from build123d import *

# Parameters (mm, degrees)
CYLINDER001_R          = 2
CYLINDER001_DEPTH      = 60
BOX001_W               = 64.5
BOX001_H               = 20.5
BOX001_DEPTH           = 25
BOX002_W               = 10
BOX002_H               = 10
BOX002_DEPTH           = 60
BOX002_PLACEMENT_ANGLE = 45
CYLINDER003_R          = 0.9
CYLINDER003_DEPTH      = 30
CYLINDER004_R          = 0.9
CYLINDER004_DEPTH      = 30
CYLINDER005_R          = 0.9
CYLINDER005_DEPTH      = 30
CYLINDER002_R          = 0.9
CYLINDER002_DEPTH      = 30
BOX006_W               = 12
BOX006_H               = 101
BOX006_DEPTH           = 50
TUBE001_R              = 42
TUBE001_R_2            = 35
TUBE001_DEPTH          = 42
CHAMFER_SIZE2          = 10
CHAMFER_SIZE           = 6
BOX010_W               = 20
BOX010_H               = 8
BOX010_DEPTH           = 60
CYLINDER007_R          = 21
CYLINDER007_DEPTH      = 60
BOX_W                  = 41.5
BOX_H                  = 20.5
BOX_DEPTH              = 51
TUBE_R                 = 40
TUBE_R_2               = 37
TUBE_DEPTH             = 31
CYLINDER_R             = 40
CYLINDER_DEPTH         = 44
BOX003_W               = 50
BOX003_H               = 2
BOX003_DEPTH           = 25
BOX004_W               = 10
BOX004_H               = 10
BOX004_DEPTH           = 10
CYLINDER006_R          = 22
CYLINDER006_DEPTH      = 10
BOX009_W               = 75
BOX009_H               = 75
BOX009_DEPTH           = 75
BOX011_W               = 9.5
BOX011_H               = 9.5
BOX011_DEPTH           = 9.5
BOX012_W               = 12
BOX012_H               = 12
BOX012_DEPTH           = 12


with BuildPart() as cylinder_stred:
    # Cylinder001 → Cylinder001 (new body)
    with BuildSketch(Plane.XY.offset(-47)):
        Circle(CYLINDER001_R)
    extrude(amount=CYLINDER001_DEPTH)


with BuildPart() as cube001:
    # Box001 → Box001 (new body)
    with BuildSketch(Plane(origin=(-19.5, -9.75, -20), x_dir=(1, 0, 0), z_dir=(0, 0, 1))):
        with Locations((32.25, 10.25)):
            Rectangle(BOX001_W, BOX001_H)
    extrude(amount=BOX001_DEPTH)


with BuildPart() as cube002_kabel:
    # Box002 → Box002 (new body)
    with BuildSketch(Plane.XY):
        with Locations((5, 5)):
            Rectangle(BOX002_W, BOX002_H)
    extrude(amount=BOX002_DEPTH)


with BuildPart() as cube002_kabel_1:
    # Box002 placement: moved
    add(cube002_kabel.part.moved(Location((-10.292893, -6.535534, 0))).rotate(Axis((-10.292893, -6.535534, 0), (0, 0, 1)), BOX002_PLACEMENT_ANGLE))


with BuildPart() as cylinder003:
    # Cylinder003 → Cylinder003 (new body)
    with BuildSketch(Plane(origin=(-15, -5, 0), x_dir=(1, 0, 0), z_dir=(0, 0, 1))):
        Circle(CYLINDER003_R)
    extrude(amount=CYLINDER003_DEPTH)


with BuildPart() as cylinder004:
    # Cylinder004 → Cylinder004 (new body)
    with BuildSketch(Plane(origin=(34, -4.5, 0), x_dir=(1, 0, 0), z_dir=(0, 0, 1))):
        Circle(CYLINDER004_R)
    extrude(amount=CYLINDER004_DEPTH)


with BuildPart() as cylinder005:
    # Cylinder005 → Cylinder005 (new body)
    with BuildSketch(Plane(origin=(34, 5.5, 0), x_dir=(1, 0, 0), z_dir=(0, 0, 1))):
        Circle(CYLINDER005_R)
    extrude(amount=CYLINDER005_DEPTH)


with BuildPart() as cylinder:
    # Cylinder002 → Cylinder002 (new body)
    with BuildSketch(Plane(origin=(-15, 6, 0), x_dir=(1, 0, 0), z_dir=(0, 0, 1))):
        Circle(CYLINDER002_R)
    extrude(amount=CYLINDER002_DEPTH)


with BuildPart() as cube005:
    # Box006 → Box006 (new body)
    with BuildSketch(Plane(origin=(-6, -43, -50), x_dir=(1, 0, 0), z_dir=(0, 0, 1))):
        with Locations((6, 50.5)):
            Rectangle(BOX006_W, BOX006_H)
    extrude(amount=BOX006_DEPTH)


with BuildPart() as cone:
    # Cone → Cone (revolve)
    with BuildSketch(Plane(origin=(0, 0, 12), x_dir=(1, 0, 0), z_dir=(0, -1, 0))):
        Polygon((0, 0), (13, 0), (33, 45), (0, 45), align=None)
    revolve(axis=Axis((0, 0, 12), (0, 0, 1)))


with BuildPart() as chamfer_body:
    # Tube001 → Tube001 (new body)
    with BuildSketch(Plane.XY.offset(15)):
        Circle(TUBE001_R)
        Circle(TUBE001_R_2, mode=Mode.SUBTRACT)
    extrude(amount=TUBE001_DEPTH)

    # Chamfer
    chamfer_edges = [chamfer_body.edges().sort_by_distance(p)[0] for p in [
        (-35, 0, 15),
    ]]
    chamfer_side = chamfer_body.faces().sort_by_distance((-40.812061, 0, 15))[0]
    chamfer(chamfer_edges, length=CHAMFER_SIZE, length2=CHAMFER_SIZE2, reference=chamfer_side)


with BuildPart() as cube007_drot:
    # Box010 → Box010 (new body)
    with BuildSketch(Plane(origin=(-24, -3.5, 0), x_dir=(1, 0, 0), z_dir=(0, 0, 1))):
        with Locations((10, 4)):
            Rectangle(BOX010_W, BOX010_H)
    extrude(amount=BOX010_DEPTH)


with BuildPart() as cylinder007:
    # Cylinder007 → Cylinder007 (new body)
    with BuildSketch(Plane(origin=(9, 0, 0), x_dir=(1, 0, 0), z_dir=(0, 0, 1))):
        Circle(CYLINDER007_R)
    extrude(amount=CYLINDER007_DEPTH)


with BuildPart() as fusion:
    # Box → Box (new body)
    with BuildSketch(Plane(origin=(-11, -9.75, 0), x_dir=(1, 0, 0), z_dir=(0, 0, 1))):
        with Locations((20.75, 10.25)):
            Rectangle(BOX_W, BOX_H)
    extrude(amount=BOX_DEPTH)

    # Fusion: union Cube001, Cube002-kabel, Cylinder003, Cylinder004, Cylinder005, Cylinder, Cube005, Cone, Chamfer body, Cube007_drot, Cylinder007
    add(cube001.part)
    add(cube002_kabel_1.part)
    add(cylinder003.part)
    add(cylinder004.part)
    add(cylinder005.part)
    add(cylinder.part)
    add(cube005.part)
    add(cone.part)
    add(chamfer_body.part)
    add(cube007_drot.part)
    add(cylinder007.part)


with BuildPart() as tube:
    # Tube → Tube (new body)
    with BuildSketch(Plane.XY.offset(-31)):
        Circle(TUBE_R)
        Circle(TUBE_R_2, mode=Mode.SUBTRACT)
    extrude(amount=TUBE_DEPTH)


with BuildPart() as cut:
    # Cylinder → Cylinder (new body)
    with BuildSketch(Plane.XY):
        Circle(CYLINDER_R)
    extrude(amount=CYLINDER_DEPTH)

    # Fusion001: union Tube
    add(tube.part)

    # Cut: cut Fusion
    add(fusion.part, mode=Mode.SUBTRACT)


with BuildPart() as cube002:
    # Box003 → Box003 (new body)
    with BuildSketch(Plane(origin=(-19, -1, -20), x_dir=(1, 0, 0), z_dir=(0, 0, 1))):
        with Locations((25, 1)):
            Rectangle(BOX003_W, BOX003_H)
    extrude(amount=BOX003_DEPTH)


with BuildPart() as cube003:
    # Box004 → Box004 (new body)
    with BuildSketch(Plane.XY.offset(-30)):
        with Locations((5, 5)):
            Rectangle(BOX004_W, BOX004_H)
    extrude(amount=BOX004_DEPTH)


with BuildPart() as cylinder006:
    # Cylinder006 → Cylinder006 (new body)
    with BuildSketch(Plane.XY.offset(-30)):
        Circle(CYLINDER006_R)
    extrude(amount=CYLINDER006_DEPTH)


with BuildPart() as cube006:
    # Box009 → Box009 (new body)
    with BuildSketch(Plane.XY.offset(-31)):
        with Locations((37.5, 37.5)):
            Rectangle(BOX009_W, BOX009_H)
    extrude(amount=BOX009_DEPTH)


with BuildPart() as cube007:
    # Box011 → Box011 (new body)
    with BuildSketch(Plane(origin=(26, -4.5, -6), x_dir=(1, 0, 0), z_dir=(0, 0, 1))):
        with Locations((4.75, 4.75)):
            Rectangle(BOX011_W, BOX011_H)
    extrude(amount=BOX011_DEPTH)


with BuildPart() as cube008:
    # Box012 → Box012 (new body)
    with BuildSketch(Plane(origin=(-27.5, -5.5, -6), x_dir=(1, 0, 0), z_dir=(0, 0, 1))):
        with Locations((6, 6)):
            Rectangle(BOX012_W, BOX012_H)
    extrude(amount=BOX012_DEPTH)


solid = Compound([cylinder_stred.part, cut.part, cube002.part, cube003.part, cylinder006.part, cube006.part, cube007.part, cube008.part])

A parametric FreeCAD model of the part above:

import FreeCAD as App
import Part
import Sketcher


def edges_at(feature, points):
    """Names of the edges that pass closest to the given points."""
    edges = feature.Shape.Edges
    near = lambda p: min(range(len(edges)), key=lambda i: edges[i].distToShape(Part.Vertex(*p))[0])
    return sorted({f"Edge{near(p) + 1}" for p in points})

doc = App.newDocument("Part")
body = doc.addObject("PartDesign::Body", "Body")

# Sketch on XY plane
sketch1 = body.newObject("Sketcher::SketchObject", "Sketch")
sketch1.AttachmentSupport = (doc.getObject("XY_Plane"), [""])
sketch1.MapMode = "FlatFace"
sketch1.AttachmentOffset = App.Placement(App.Vector(0, 0, -47), App.Rotation())
sketch1.addGeometry(Part.Circle(App.Vector(0, 0, 0), App.Vector(0, 0, 1), 2), False)
sketch1.addConstraint(Sketcher.Constraint("Coincident", 0, 3, -1, 1))
sketch1.addConstraint(Sketcher.Constraint("Diameter", 0, 4.0))
pad1 = body.newObject("PartDesign::Pad", "Pad")
pad1.Profile = sketch1
pad1.Length = 60
body2 = doc.addObject("PartDesign::Body", "Body001")

# Sketch on XY plane
sketch2 = body2.newObject("Sketcher::SketchObject", "Sketch001")
sketch2.AttachmentSupport = (doc.getObject("XY_Plane001"), [""])
sketch2.MapMode = "FlatFace"
sketch2.AttachmentOffset = App.Placement(App.Vector(0, 0, -20), App.Rotation())
sketch2.addGeometry(Part.LineSegment(App.Vector(-19.5, 10.75, 0), App.Vector(-19.5, -9.75, 0)), False)
sketch2.addGeometry(Part.LineSegment(App.Vector(-19.5, -9.75, 0), App.Vector(45, -9.75, 0)), False)
sketch2.addGeometry(Part.LineSegment(App.Vector(45, -9.75, 0), App.Vector(45, 10.75, 0)), False)
sketch2.addGeometry(Part.LineSegment(App.Vector(45, 10.75, 0), App.Vector(-19.5, 10.75, 0)), False)
sketch2.addConstraint(Sketcher.Constraint("Coincident", 0, 2, 1, 1))
sketch2.addConstraint(Sketcher.Constraint("Coincident", 1, 2, 2, 1))
sketch2.addConstraint(Sketcher.Constraint("Coincident", 2, 2, 3, 1))
sketch2.addConstraint(Sketcher.Constraint("Coincident", 3, 2, 0, 1))
sketch2.addConstraint(Sketcher.Constraint("Vertical", 0))
sketch2.addConstraint(Sketcher.Constraint("Horizontal", 1))
sketch2.addConstraint(Sketcher.Constraint("Vertical", 2))
sketch2.addConstraint(Sketcher.Constraint("Horizontal", 3))
sketch2.addConstraint(Sketcher.Constraint("DistanceX", 1, 1, 1, 2, 64.5))
sketch2.addConstraint(Sketcher.Constraint("DistanceY", 0, 2, 0, 1, 20.5))
sketch2.addConstraint(Sketcher.Constraint("DistanceX", -1, 1, 1, 2, 45.0))
sketch2.addConstraint(Sketcher.Constraint("DistanceY", 0, 2, -1, 1, 9.75))
pad2 = body2.newObject("PartDesign::Pad", "Pad001")
pad2.Profile = sketch2
pad2.Length = 25
body3 = doc.addObject("PartDesign::Body", "Body002")

# Sketch on XY plane
sketch3 = body3.newObject("Sketcher::SketchObject", "Sketch002")
sketch3.AttachmentSupport = (doc.getObject("XY_Plane002"), [""])
sketch3.MapMode = "FlatFace"
sketch3.addGeometry(Part.LineSegment(App.Vector(0, 10, 0), App.Vector(0, 0, 0)), False)
sketch3.addGeometry(Part.LineSegment(App.Vector(0, 0, 0), App.Vector(10, 0, 0)), False)
sketch3.addGeometry(Part.LineSegment(App.Vector(10, 0, 0), App.Vector(10, 10, 0)), False)
sketch3.addGeometry(Part.LineSegment(App.Vector(10, 10, 0), App.Vector(0, 10, 0)), False)
sketch3.addConstraint(Sketcher.Constraint("Coincident", 0, 2, 1, 1))
sketch3.addConstraint(Sketcher.Constraint("Coincident", 1, 2, 2, 1))
sketch3.addConstraint(Sketcher.Constraint("Coincident", 2, 2, 3, 1))
sketch3.addConstraint(Sketcher.Constraint("Coincident", 3, 2, 0, 1))
sketch3.addConstraint(Sketcher.Constraint("Vertical", 0))
sketch3.addConstraint(Sketcher.Constraint("Horizontal", 1))
sketch3.addConstraint(Sketcher.Constraint("Vertical", 2))
sketch3.addConstraint(Sketcher.Constraint("Horizontal", 3))
sketch3.addConstraint(Sketcher.Constraint("Coincident", 0, 2, -1, 1))
sketch3.addConstraint(Sketcher.Constraint("Equal", 3, 0))
sketch3.addConstraint(Sketcher.Constraint("DistanceX", 1, 1, 1, 2, 10.0))
pad3 = body3.newObject("PartDesign::Pad", "Pad002")
pad3.Profile = sketch3
pad3.Length = 60
body4 = doc.addObject("PartDesign::Body", "Body003")
doc.recompute()

body3.Placement = App.Placement(App.Vector(-10.292893, -6.535534, 0), App.Rotation(App.Vector(0, 0, 1), 45))
boolean = body4.newObject("PartDesign::Boolean", "Boolean")
boolean.Type = "Fuse"
boolean.addObjects([body3])
body5 = doc.addObject("PartDesign::Body", "Body004")

# Sketch on XY plane
sketch4 = body5.newObject("Sketcher::SketchObject", "Sketch003")
sketch4.AttachmentSupport = (doc.getObject("XY_Plane004"), [""])
sketch4.MapMode = "FlatFace"
sketch4.addGeometry(Part.Circle(App.Vector(-15, -5, 0), App.Vector(0, 0, 1), 0.9), False)
sketch4.addConstraint(Sketcher.Constraint("Diameter", 0, 1.8))
sketch4.addConstraint(Sketcher.Constraint("DistanceX", 0, 3, -1, 1, 15.0))
sketch4.addConstraint(Sketcher.Constraint("DistanceY", 0, 3, -1, 1, 5.0))
pad4 = body5.newObject("PartDesign::Pad", "Pad003")
pad4.Profile = sketch4
pad4.Length = 30
body6 = doc.addObject("PartDesign::Body", "Body005")

# Sketch on XY plane
sketch5 = body6.newObject("Sketcher::SketchObject", "Sketch004")
sketch5.AttachmentSupport = (doc.getObject("XY_Plane005"), [""])
sketch5.MapMode = "FlatFace"
sketch5.addGeometry(Part.Circle(App.Vector(34, -4.5, 0), App.Vector(0, 0, 1), 0.9), False)
sketch5.addConstraint(Sketcher.Constraint("Diameter", 0, 1.8))
sketch5.addConstraint(Sketcher.Constraint("DistanceX", -1, 1, 0, 3, 34.0))
sketch5.addConstraint(Sketcher.Constraint("DistanceY", 0, 3, -1, 1, 4.5))
pad5 = body6.newObject("PartDesign::Pad", "Pad004")
pad5.Profile = sketch5
pad5.Length = 30
body7 = doc.addObject("PartDesign::Body", "Body006")

# Sketch on XY plane
sketch6 = body7.newObject("Sketcher::SketchObject", "Sketch005")
sketch6.AttachmentSupport = (doc.getObject("XY_Plane006"), [""])
sketch6.MapMode = "FlatFace"
sketch6.addGeometry(Part.Circle(App.Vector(34, 5.5, 0), App.Vector(0, 0, 1), 0.9), False)
sketch6.addConstraint(Sketcher.Constraint("Diameter", 0, 1.8))
sketch6.addConstraint(Sketcher.Constraint("DistanceX", -1, 1, 0, 3, 34.0))
sketch6.addConstraint(Sketcher.Constraint("DistanceY", -1, 1, 0, 3, 5.5))
pad6 = body7.newObject("PartDesign::Pad", "Pad005")
pad6.Profile = sketch6
pad6.Length = 30
body8 = doc.addObject("PartDesign::Body", "Body007")

# Sketch on XY plane
sketch7 = body8.newObject("Sketcher::SketchObject", "Sketch006")
sketch7.AttachmentSupport = (doc.getObject("XY_Plane007"), [""])
sketch7.MapMode = "FlatFace"
sketch7.addGeometry(Part.Circle(App.Vector(-15, 6, 0), App.Vector(0, 0, 1), 0.9), False)
sketch7.addConstraint(Sketcher.Constraint("Diameter", 0, 1.8))
sketch7.addConstraint(Sketcher.Constraint("DistanceX", 0, 3, -1, 1, 15.0))
sketch7.addConstraint(Sketcher.Constraint("DistanceY", -1, 1, 0, 3, 6.0))
pad7 = body8.newObject("PartDesign::Pad", "Pad006")
pad7.Profile = sketch7
pad7.Length = 30
body9 = doc.addObject("PartDesign::Body", "Body008")

# Sketch on XY plane
sketch8 = body9.newObject("Sketcher::SketchObject", "Sketch007")
sketch8.AttachmentSupport = (doc.getObject("XY_Plane008"), [""])
sketch8.MapMode = "FlatFace"
sketch8.AttachmentOffset = App.Placement(App.Vector(0, 0, -50), App.Rotation())
sketch8.addGeometry(Part.LineSegment(App.Vector(-6, 58, 0), App.Vector(-6, -43, 0)), False)
sketch8.addGeometry(Part.LineSegment(App.Vector(-6, -43, 0), App.Vector(6, -43, 0)), False)
sketch8.addGeometry(Part.LineSegment(App.Vector(6, -43, 0), App.Vector(6, 58, 0)), False)
sketch8.addGeometry(Part.LineSegment(App.Vector(6, 58, 0), App.Vector(-6, 58, 0)), False)
sketch8.addConstraint(Sketcher.Constraint("Coincident", 0, 2, 1, 1))
sketch8.addConstraint(Sketcher.Constraint("Coincident", 1, 2, 2, 1))
sketch8.addConstraint(Sketcher.Constraint("Coincident", 2, 2, 3, 1))
sketch8.addConstraint(Sketcher.Constraint("Coincident", 3, 2, 0, 1))
sketch8.addConstraint(Sketcher.Constraint("Vertical", 0))
sketch8.addConstraint(Sketcher.Constraint("Horizontal", 1))
sketch8.addConstraint(Sketcher.Constraint("Vertical", 2))
sketch8.addConstraint(Sketcher.Constraint("Horizontal", 3))
sketch8.addConstraint(Sketcher.Constraint("DistanceX", 1, 1, 1, 2, 12.0))
sketch8.addConstraint(Sketcher.Constraint("DistanceY", 0, 2, 0, 1, 101.0))
sketch8.addConstraint(Sketcher.Constraint("DistanceX", 0, 2, -1, 1, 6.0))
sketch8.addConstraint(Sketcher.Constraint("DistanceY", 0, 2, -1, 1, 43.0))
pad8 = body9.newObject("PartDesign::Pad", "Pad007")
pad8.Profile = sketch8
pad8.Length = 50
body10 = doc.addObject("PartDesign::Body", "Body009")

# Sketch on XZ plane
sketch9 = body10.newObject("Sketcher::SketchObject", "Sketch008")
sketch9.AttachmentSupport = (doc.getObject("XZ_Plane009"), [""])
sketch9.MapMode = "FlatFace"
sketch9.addGeometry(Part.LineSegment(App.Vector(0, 12, 0), App.Vector(13, 12, 0)), False)
sketch9.addGeometry(Part.LineSegment(App.Vector(13, 12, 0), App.Vector(33, 57, 0)), False)
sketch9.addGeometry(Part.LineSegment(App.Vector(33, 57, 0), App.Vector(0, 57, 0)), False)
sketch9.addGeometry(Part.LineSegment(App.Vector(0, 57, 0), App.Vector(0, 12, 0)), False)
sketch9.addConstraint(Sketcher.Constraint("Coincident", 0, 2, 1, 1))
sketch9.addConstraint(Sketcher.Constraint("Coincident", 1, 2, 2, 1))
sketch9.addConstraint(Sketcher.Constraint("Coincident", 2, 2, 3, 1))
sketch9.addConstraint(Sketcher.Constraint("Coincident", 3, 2, 0, 1))
sketch9.addConstraint(Sketcher.Constraint("Horizontal", 0))
sketch9.addConstraint(Sketcher.Constraint("Horizontal", 2))
sketch9.addConstraint(Sketcher.Constraint("Vertical", 3))
sketch9.addConstraint(Sketcher.Constraint("PointOnObject", 2, 2, -2))
sketch9.addConstraint(Sketcher.Constraint("DistanceX", 0, 1, 0, 2, 13.0))
sketch9.addConstraint(Sketcher.Constraint("DistanceX", 2, 2, 2, 1, 33.0))
sketch9.addConstraint(Sketcher.Constraint("DistanceY", 3, 2, 3, 1, 45.0))
sketch9.addConstraint(Sketcher.Constraint("DistanceY", -1, 1, 0, 2, 12.0))
revolution = body10.newObject("PartDesign::Revolution", "Revolution")
revolution.Profile = sketch9
revolution.ReferenceAxis = (sketch9, ["V_Axis"])
revolution.Angle = 360
body11 = doc.addObject("PartDesign::Body", "Body010")

# Sketch on XY plane
sketch10 = body11.newObject("Sketcher::SketchObject", "Sketch009")
sketch10.AttachmentSupport = (doc.getObject("XY_Plane010"), [""])
sketch10.MapMode = "FlatFace"
sketch10.AttachmentOffset = App.Placement(App.Vector(0, 0, 15), App.Rotation())
sketch10.addGeometry(Part.Circle(App.Vector(0, 0, 0), App.Vector(0, 0, 1), 42), False)
sketch10.addGeometry(Part.Circle(App.Vector(0, 0, 0), App.Vector(0, 0, 1), 35), False)
sketch10.addConstraint(Sketcher.Constraint("Coincident", 0, 3, -1, 1))
sketch10.addConstraint(Sketcher.Constraint("Coincident", 1, 3, -1, 1))
sketch10.addConstraint(Sketcher.Constraint("Diameter", 0, 84.0))
sketch10.addConstraint(Sketcher.Constraint("Diameter", 1, 70.0))
pad9 = body11.newObject("PartDesign::Pad", "Pad008")
pad9.Profile = sketch10
pad9.Length = 42
doc.recompute()

chamfer = body11.newObject("PartDesign::Chamfer", "Chamfer")
chamfer.Base = (pad9, edges_at(pad9, [(-35, 0, 15)]))
chamfer.ChamferType = "Two distances"
chamfer.Size = 6
chamfer.Size2 = 10
chamfer.FlipDirection = True
body12 = doc.addObject("PartDesign::Body", "Body011")

# Sketch on XY plane
sketch11 = body12.newObject("Sketcher::SketchObject", "Sketch010")
sketch11.AttachmentSupport = (doc.getObject("XY_Plane011"), [""])
sketch11.MapMode = "FlatFace"
sketch11.addGeometry(Part.LineSegment(App.Vector(-24, 4.5, 0), App.Vector(-24, -3.5, 0)), False)
sketch11.addGeometry(Part.LineSegment(App.Vector(-24, -3.5, 0), App.Vector(-4, -3.5, 0)), False)
sketch11.addGeometry(Part.LineSegment(App.Vector(-4, -3.5, 0), App.Vector(-4, 4.5, 0)), False)
sketch11.addGeometry(Part.LineSegment(App.Vector(-4, 4.5, 0), App.Vector(-24, 4.5, 0)), False)
sketch11.addConstraint(Sketcher.Constraint("Coincident", 0, 2, 1, 1))
sketch11.addConstraint(Sketcher.Constraint("Coincident", 1, 2, 2, 1))
sketch11.addConstraint(Sketcher.Constraint("Coincident", 2, 2, 3, 1))
sketch11.addConstraint(Sketcher.Constraint("Coincident", 3, 2, 0, 1))
sketch11.addConstraint(Sketcher.Constraint("Vertical", 0))
sketch11.addConstraint(Sketcher.Constraint("Horizontal", 1))
sketch11.addConstraint(Sketcher.Constraint("Vertical", 2))
sketch11.addConstraint(Sketcher.Constraint("Horizontal", 3))
sketch11.addConstraint(Sketcher.Constraint("DistanceX", 1, 1, 1, 2, 20.0))
sketch11.addConstraint(Sketcher.Constraint("DistanceY", 0, 2, 0, 1, 8.0))
sketch11.addConstraint(Sketcher.Constraint("DistanceX", 0, 2, -1, 1, 24.0))
sketch11.addConstraint(Sketcher.Constraint("DistanceY", 0, 2, -1, 1, 3.5))
pad10 = body12.newObject("PartDesign::Pad", "Pad009")
pad10.Profile = sketch11
pad10.Length = 60
body13 = doc.addObject("PartDesign::Body", "Body012")

# Sketch on XY plane
sketch12 = body13.newObject("Sketcher::SketchObject", "Sketch011")
sketch12.AttachmentSupport = (doc.getObject("XY_Plane012"), [""])
sketch12.MapMode = "FlatFace"
sketch12.addGeometry(Part.Circle(App.Vector(9, 0, 0), App.Vector(0, 0, 1), 21), False)
sketch12.addConstraint(Sketcher.Constraint("PointOnObject", 0, 3, -1))
sketch12.addConstraint(Sketcher.Constraint("Diameter", 0, 42.0))
sketch12.addConstraint(Sketcher.Constraint("DistanceX", -1, 1, 0, 3, 9.0))
pad11 = body13.newObject("PartDesign::Pad", "Pad010")
pad11.Profile = sketch12
pad11.Length = 60
body14 = doc.addObject("PartDesign::Body", "Body013")

# Sketch on XY plane
sketch13 = body14.newObject("Sketcher::SketchObject", "Sketch012")
sketch13.AttachmentSupport = (doc.getObject("XY_Plane013"), [""])
sketch13.MapMode = "FlatFace"
sketch13.addGeometry(Part.LineSegment(App.Vector(-11, 10.75, 0), App.Vector(-11, -9.75, 0)), False)
sketch13.addGeometry(Part.LineSegment(App.Vector(-11, -9.75, 0), App.Vector(30.5, -9.75, 0)), False)
sketch13.addGeometry(Part.LineSegment(App.Vector(30.5, -9.75, 0), App.Vector(30.5, 10.75, 0)), False)
sketch13.addGeometry(Part.LineSegment(App.Vector(30.5, 10.75, 0), App.Vector(-11, 10.75, 0)), False)
sketch13.addConstraint(Sketcher.Constraint("Coincident", 0, 2, 1, 1))
sketch13.addConstraint(Sketcher.Constraint("Coincident", 1, 2, 2, 1))
sketch13.addConstraint(Sketcher.Constraint("Coincident", 2, 2, 3, 1))
sketch13.addConstraint(Sketcher.Constraint("Coincident", 3, 2, 0, 1))
sketch13.addConstraint(Sketcher.Constraint("Vertical", 0))
sketch13.addConstraint(Sketcher.Constraint("Horizontal", 1))
sketch13.addConstraint(Sketcher.Constraint("Vertical", 2))
sketch13.addConstraint(Sketcher.Constraint("Horizontal", 3))
sketch13.addConstraint(Sketcher.Constraint("DistanceX", 1, 1, 1, 2, 41.5))
sketch13.addConstraint(Sketcher.Constraint("DistanceY", 0, 2, 0, 1, 20.5))
sketch13.addConstraint(Sketcher.Constraint("DistanceX", 0, 2, -1, 1, 11.0))
sketch13.addConstraint(Sketcher.Constraint("DistanceY", 0, 2, -1, 1, 9.75))
pad12 = body14.newObject("PartDesign::Pad", "Pad011")
pad12.Profile = sketch13
pad12.Length = 51
doc.recompute()

boolean2 = body14.newObject("PartDesign::Boolean", "Boolean001")
boolean2.Type = "Fuse"
boolean2.addObjects([body2])
doc.recompute()

boolean3 = body14.newObject("PartDesign::Boolean", "Boolean002")
boolean3.Type = "Fuse"
boolean3.addObjects([body4])
doc.recompute()

boolean4 = body14.newObject("PartDesign::Boolean", "Boolean003")
boolean4.Type = "Fuse"
boolean4.addObjects([body5])
doc.recompute()

boolean5 = body14.newObject("PartDesign::Boolean", "Boolean004")
boolean5.Type = "Fuse"
boolean5.addObjects([body6])
doc.recompute()

boolean6 = body14.newObject("PartDesign::Boolean", "Boolean005")
boolean6.Type = "Fuse"
boolean6.addObjects([body7])
doc.recompute()

boolean7 = body14.newObject("PartDesign::Boolean", "Boolean006")
boolean7.Type = "Fuse"
boolean7.addObjects([body8])
doc.recompute()

boolean8 = body14.newObject("PartDesign::Boolean", "Boolean007")
boolean8.Type = "Fuse"
boolean8.addObjects([body9])
doc.recompute()

boolean9 = body14.newObject("PartDesign::Boolean", "Boolean008")
boolean9.Type = "Fuse"
boolean9.addObjects([body10])
doc.recompute()

boolean10 = body14.newObject("PartDesign::Boolean", "Boolean009")
boolean10.Type = "Fuse"
boolean10.addObjects([body11])
doc.recompute()

boolean11 = body14.newObject("PartDesign::Boolean", "Boolean010")
boolean11.Type = "Fuse"
boolean11.addObjects([body12])
doc.recompute()

boolean12 = body14.newObject("PartDesign::Boolean", "Boolean011")
boolean12.Type = "Fuse"
boolean12.addObjects([body13])
body15 = doc.addObject("PartDesign::Body", "Body014")

# Sketch on XY plane
sketch14 = body15.newObject("Sketcher::SketchObject", "Sketch013")
sketch14.AttachmentSupport = (doc.getObject("XY_Plane014"), [""])
sketch14.MapMode = "FlatFace"
sketch14.AttachmentOffset = App.Placement(App.Vector(0, 0, -31), App.Rotation())
sketch14.addGeometry(Part.Circle(App.Vector(0, 0, 0), App.Vector(0, 0, 1), 40), False)
sketch14.addGeometry(Part.Circle(App.Vector(0, 0, 0), App.Vector(0, 0, 1), 37), False)
sketch14.addConstraint(Sketcher.Constraint("Coincident", 0, 3, -1, 1))
sketch14.addConstraint(Sketcher.Constraint("Coincident", 1, 3, -1, 1))
sketch14.addConstraint(Sketcher.Constraint("Diameter", 0, 80.0))
sketch14.addConstraint(Sketcher.Constraint("Diameter", 1, 74.0))
pad13 = body15.newObject("PartDesign::Pad", "Pad012")
pad13.Profile = sketch14
pad13.Length = 31
body16 = doc.addObject("PartDesign::Body", "Body015")

# Sketch on XY plane
sketch15 = body16.newObject("Sketcher::SketchObject", "Sketch014")
sketch15.AttachmentSupport = (doc.getObject("XY_Plane015"), [""])
sketch15.MapMode = "FlatFace"
sketch15.addGeometry(Part.Circle(App.Vector(0, 0, 0), App.Vector(0, 0, 1), 40), False)
sketch15.addConstraint(Sketcher.Constraint("Coincident", 0, 3, -1, 1))
sketch15.addConstraint(Sketcher.Constraint("Diameter", 0, 80.0))
pad14 = body16.newObject("PartDesign::Pad", "Pad013")
pad14.Profile = sketch15
pad14.Length = 44
doc.recompute()

boolean13 = body16.newObject("PartDesign::Boolean", "Boolean012")
boolean13.Type = "Fuse"
boolean13.addObjects([body15])
doc.recompute()

boolean14 = body16.newObject("PartDesign::Boolean", "Boolean013")
boolean14.Type = "Cut"
boolean14.addObjects([body14])
body17 = doc.addObject("PartDesign::Body", "Body016")

# Sketch on XY plane
sketch16 = body17.newObject("Sketcher::SketchObject", "Sketch015")
sketch16.AttachmentSupport = (doc.getObject("XY_Plane016"), [""])
sketch16.MapMode = "FlatFace"
sketch16.AttachmentOffset = App.Placement(App.Vector(0, 0, -20), App.Rotation())
sketch16.addGeometry(Part.LineSegment(App.Vector(-19, 1, 0), App.Vector(-19, -1, 0)), False)
sketch16.addGeometry(Part.LineSegment(App.Vector(-19, -1, 0), App.Vector(31, -1, 0)), False)
sketch16.addGeometry(Part.LineSegment(App.Vector(31, -1, 0), App.Vector(31, 1, 0)), False)
sketch16.addGeometry(Part.LineSegment(App.Vector(31, 1, 0), App.Vector(-19, 1, 0)), False)
sketch16.addConstraint(Sketcher.Constraint("Coincident", 0, 2, 1, 1))
sketch16.addConstraint(Sketcher.Constraint("Coincident", 1, 2, 2, 1))
sketch16.addConstraint(Sketcher.Constraint("Coincident", 2, 2, 3, 1))
sketch16.addConstraint(Sketcher.Constraint("Coincident", 3, 2, 0, 1))
sketch16.addConstraint(Sketcher.Constraint("Vertical", 0))
sketch16.addConstraint(Sketcher.Constraint("Horizontal", 1))
sketch16.addConstraint(Sketcher.Constraint("Vertical", 2))
sketch16.addConstraint(Sketcher.Constraint("Horizontal", 3))
sketch16.addConstraint(Sketcher.Constraint("DistanceX", 1, 1, 1, 2, 50.0))
sketch16.addConstraint(Sketcher.Constraint("DistanceY", 0, 2, 0, 1, 2.0))
sketch16.addConstraint(Sketcher.Constraint("DistanceX", 0, 2, -1, 1, 19.0))
sketch16.addConstraint(Sketcher.Constraint("DistanceY", 0, 2, -1, 1, 1.0))
pad15 = body17.newObject("PartDesign::Pad", "Pad014")
pad15.Profile = sketch16
pad15.Length = 25
body18 = doc.addObject("PartDesign::Body", "Body017")

# Sketch on XY plane
sketch17 = body18.newObject("Sketcher::SketchObject", "Sketch016")
sketch17.AttachmentSupport = (doc.getObject("XY_Plane017"), [""])
sketch17.MapMode = "FlatFace"
sketch17.AttachmentOffset = App.Placement(App.Vector(0, 0, -30), App.Rotation())
sketch17.addGeometry(Part.LineSegment(App.Vector(0, 10, 0), App.Vector(0, 0, 0)), False)
sketch17.addGeometry(Part.LineSegment(App.Vector(0, 0, 0), App.Vector(10, 0, 0)), False)
sketch17.addGeometry(Part.LineSegment(App.Vector(10, 0, 0), App.Vector(10, 10, 0)), False)
sketch17.addGeometry(Part.LineSegment(App.Vector(10, 10, 0), App.Vector(0, 10, 0)), False)
sketch17.addConstraint(Sketcher.Constraint("Coincident", 0, 2, 1, 1))
sketch17.addConstraint(Sketcher.Constraint("Coincident", 1, 2, 2, 1))
sketch17.addConstraint(Sketcher.Constraint("Coincident", 2, 2, 3, 1))
sketch17.addConstraint(Sketcher.Constraint("Coincident", 3, 2, 0, 1))
sketch17.addConstraint(Sketcher.Constraint("Vertical", 0))
sketch17.addConstraint(Sketcher.Constraint("Horizontal", 1))
sketch17.addConstraint(Sketcher.Constraint("Vertical", 2))
sketch17.addConstraint(Sketcher.Constraint("Horizontal", 3))
sketch17.addConstraint(Sketcher.Constraint("Coincident", 0, 2, -1, 1))
sketch17.addConstraint(Sketcher.Constraint("Equal", 3, 0))
sketch17.addConstraint(Sketcher.Constraint("DistanceX", 1, 1, 1, 2, 10.0))
pad16 = body18.newObject("PartDesign::Pad", "Pad015")
pad16.Profile = sketch17
pad16.Length = 10
body19 = doc.addObject("PartDesign::Body", "Body018")

# Sketch on XY plane
sketch18 = body19.newObject("Sketcher::SketchObject", "Sketch017")
sketch18.AttachmentSupport = (doc.getObject("XY_Plane018"), [""])
sketch18.MapMode = "FlatFace"
sketch18.AttachmentOffset = App.Placement(App.Vector(0, 0, -30), App.Rotation())
sketch18.addGeometry(Part.Circle(App.Vector(0, 0, 0), App.Vector(0, 0, 1), 22), False)
sketch18.addConstraint(Sketcher.Constraint("Coincident", 0, 3, -1, 1))
sketch18.addConstraint(Sketcher.Constraint("Diameter", 0, 44.0))
pad17 = body19.newObject("PartDesign::Pad", "Pad016")
pad17.Profile = sketch18
pad17.Length = 10
body20 = doc.addObject("PartDesign::Body", "Body019")

# Sketch on XY plane
sketch19 = body20.newObject("Sketcher::SketchObject", "Sketch018")
sketch19.AttachmentSupport = (doc.getObject("XY_Plane019"), [""])
sketch19.MapMode = "FlatFace"
sketch19.AttachmentOffset = App.Placement(App.Vector(0, 0, -31), App.Rotation())
sketch19.addGeometry(Part.LineSegment(App.Vector(0, 75, 0), App.Vector(0, 0, 0)), False)
sketch19.addGeometry(Part.LineSegment(App.Vector(0, 0, 0), App.Vector(75, 0, 0)), False)
sketch19.addGeometry(Part.LineSegment(App.Vector(75, 0, 0), App.Vector(75, 75, 0)), False)
sketch19.addGeometry(Part.LineSegment(App.Vector(75, 75, 0), App.Vector(0, 75, 0)), False)
sketch19.addConstraint(Sketcher.Constraint("Coincident", 0, 2, 1, 1))
sketch19.addConstraint(Sketcher.Constraint("Coincident", 1, 2, 2, 1))
sketch19.addConstraint(Sketcher.Constraint("Coincident", 2, 2, 3, 1))
sketch19.addConstraint(Sketcher.Constraint("Coincident", 3, 2, 0, 1))
sketch19.addConstraint(Sketcher.Constraint("Vertical", 0))
sketch19.addConstraint(Sketcher.Constraint("Horizontal", 1))
sketch19.addConstraint(Sketcher.Constraint("Vertical", 2))
sketch19.addConstraint(Sketcher.Constraint("Horizontal", 3))
sketch19.addConstraint(Sketcher.Constraint("Coincident", 0, 2, -1, 1))
sketch19.addConstraint(Sketcher.Constraint("Equal", 3, 0))
sketch19.addConstraint(Sketcher.Constraint("DistanceX", 1, 1, 1, 2, 75.0))
pad18 = body20.newObject("PartDesign::Pad", "Pad017")
pad18.Profile = sketch19
pad18.Length = 75
body21 = doc.addObject("PartDesign::Body", "Body020")

# Sketch on XY plane
sketch20 = body21.newObject("Sketcher::SketchObject", "Sketch019")
sketch20.AttachmentSupport = (doc.getObject("XY_Plane020"), [""])
sketch20.MapMode = "FlatFace"
sketch20.AttachmentOffset = App.Placement(App.Vector(0, 0, -6), App.Rotation())
sketch20.addGeometry(Part.LineSegment(App.Vector(26, 5, 0), App.Vector(26, -4.5, 0)), False)
sketch20.addGeometry(Part.LineSegment(App.Vector(26, -4.5, 0), App.Vector(35.5, -4.5, 0)), False)
sketch20.addGeometry(Part.LineSegment(App.Vector(35.5, -4.5, 0), App.Vector(35.5, 5, 0)), False)
sketch20.addGeometry(Part.LineSegment(App.Vector(35.5, 5, 0), App.Vector(26, 5, 0)), False)
sketch20.addConstraint(Sketcher.Constraint("Coincident", 0, 2, 1, 1))
sketch20.addConstraint(Sketcher.Constraint("Coincident", 1, 2, 2, 1))
sketch20.addConstraint(Sketcher.Constraint("Coincident", 2, 2, 3, 1))
sketch20.addConstraint(Sketcher.Constraint("Coincident", 3, 2, 0, 1))
sketch20.addConstraint(Sketcher.Constraint("Vertical", 0))
sketch20.addConstraint(Sketcher.Constraint("Horizontal", 1))
sketch20.addConstraint(Sketcher.Constraint("Vertical", 2))
sketch20.addConstraint(Sketcher.Constraint("Horizontal", 3))
sketch20.addConstraint(Sketcher.Constraint("Equal", 3, 0))
sketch20.addConstraint(Sketcher.Constraint("DistanceX", 1, 1, 1, 2, 9.5))
sketch20.addConstraint(Sketcher.Constraint("DistanceX", -1, 1, 0, 2, 26.0))
sketch20.addConstraint(Sketcher.Constraint("DistanceY", -1, 1, 2, 2, 5.0))
pad19 = body21.newObject("PartDesign::Pad", "Pad018")
pad19.Profile = sketch20
pad19.Length = 9.5
body22 = doc.addObject("PartDesign::Body", "Body021")

# Sketch on XY plane
sketch21 = body22.newObject("Sketcher::SketchObject", "Sketch020")
sketch21.AttachmentSupport = (doc.getObject("XY_Plane021"), [""])
sketch21.MapMode = "FlatFace"
sketch21.AttachmentOffset = App.Placement(App.Vector(0, 0, -6), App.Rotation())
sketch21.addGeometry(Part.LineSegment(App.Vector(-27.5, 6.5, 0), App.Vector(-27.5, -5.5, 0)), False)
sketch21.addGeometry(Part.LineSegment(App.Vector(-27.5, -5.5, 0), App.Vector(-15.5, -5.5, 0)), False)
sketch21.addGeometry(Part.LineSegment(App.Vector(-15.5, -5.5, 0), App.Vector(-15.5, 6.5, 0)), False)
sketch21.addGeometry(Part.LineSegment(App.Vector(-15.5, 6.5, 0), App.Vector(-27.5, 6.5, 0)), False)
sketch21.addConstraint(Sketcher.Constraint("Coincident", 0, 2, 1, 1))
sketch21.addConstraint(Sketcher.Constraint("Coincident", 1, 2, 2, 1))
sketch21.addConstraint(Sketcher.Constraint("Coincident", 2, 2, 3, 1))
sketch21.addConstraint(Sketcher.Constraint("Coincident", 3, 2, 0, 1))
sketch21.addConstraint(Sketcher.Constraint("Vertical", 0))
sketch21.addConstraint(Sketcher.Constraint("Horizontal", 1))
sketch21.addConstraint(Sketcher.Constraint("Vertical", 2))
sketch21.addConstraint(Sketcher.Constraint("Horizontal", 3))
sketch21.addConstraint(Sketcher.Constraint("Equal", 3, 0))
sketch21.addConstraint(Sketcher.Constraint("DistanceX", 1, 1, 1, 2, 12.0))
sketch21.addConstraint(Sketcher.Constraint("DistanceX", 0, 2, -1, 1, 27.5))
sketch21.addConstraint(Sketcher.Constraint("DistanceY", 0, 2, -1, 1, 5.5))
pad20 = body22.newObject("PartDesign::Pad", "Pad019")
pad20.Profile = sketch21
pad20.Length = 12

doc.recompute()
